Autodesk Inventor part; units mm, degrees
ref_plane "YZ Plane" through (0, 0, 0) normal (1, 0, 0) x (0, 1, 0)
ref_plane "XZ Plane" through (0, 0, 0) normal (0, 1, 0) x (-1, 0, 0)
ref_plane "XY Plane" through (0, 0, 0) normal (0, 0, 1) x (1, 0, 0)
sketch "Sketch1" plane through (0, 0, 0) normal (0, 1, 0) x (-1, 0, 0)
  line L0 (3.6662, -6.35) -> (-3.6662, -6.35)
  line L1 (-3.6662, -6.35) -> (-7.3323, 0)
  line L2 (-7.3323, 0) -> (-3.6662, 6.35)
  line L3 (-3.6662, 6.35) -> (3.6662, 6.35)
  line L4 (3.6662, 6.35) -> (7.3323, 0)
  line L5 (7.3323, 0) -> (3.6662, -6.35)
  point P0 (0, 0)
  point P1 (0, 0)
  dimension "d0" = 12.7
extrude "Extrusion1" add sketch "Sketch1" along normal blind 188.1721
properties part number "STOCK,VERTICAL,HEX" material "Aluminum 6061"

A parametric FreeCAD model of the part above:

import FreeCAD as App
import Part
import Sketcher
from FreeCAD import Vector
Q = App.Units.Quantity


def add_polygon(sketch, points):
    """Adds a closed chain of lines whose ends are joined by coincident constraints."""
    first, n = sketch.GeometryCount, len(points)
    for a, b in zip(points, points[1:] + points[:1]):
        sketch.addGeometry(Part.LineSegment(App.Vector(*a, 0), App.Vector(*b, 0)), False)
    for i in range(n):
        sketch.addConstraint(Sketcher.Constraint("Coincident", first + i, 2, first + (i + 1) % n, 1))

doc = App.newDocument("Part")
body = doc.addObject("PartDesign::Body", "Body")

# Sketch on XZ plane
sketch1 = body.newObject("Sketcher::SketchObject", "Sketch")
sketch1.AttachmentSupport = (doc.getObject("XZ_Plane"), [""])
sketch1.MapMode = "FlatFace"
add_polygon(sketch1, [(4, -6), (-4, -6), (-7, 0), (-4, 6), (4, 6), (7, 0)])  # lines 0-5
sketch1.addConstraint([
    Sketcher.Constraint("Horizontal", 0),
    Sketcher.Constraint("Horizontal", 3),
    Sketcher.Constraint("Symmetric", 0, 2, 3, 2, -1, 1),
    Sketcher.Constraint("Symmetric", 1, 2, 4, 2, -1, 1),
    Sketcher.Constraint("PointOnObject", 1, 2, -1),
    Sketcher.Constraint("Parallel", 2, 5),
    Sketcher.Constraint("Vertical", 0, 2, 2, 2),
    Sketcher.Constraint("DistanceY", 0, 2, 2, 2, Q("12.7 mm")),
    Sketcher.Constraint("Angle", 1, Q("119.9995 deg")),
    Sketcher.Constraint("DistanceX", 0, 2, 0, 1, Q("7.3324 mm")),
])
pad1 = body.newObject("PartDesign::Pad", "Pad")
pad1.Profile = sketch1
pad1.Length = 188.1721
pad1.Reversed = True

doc.recompute()
